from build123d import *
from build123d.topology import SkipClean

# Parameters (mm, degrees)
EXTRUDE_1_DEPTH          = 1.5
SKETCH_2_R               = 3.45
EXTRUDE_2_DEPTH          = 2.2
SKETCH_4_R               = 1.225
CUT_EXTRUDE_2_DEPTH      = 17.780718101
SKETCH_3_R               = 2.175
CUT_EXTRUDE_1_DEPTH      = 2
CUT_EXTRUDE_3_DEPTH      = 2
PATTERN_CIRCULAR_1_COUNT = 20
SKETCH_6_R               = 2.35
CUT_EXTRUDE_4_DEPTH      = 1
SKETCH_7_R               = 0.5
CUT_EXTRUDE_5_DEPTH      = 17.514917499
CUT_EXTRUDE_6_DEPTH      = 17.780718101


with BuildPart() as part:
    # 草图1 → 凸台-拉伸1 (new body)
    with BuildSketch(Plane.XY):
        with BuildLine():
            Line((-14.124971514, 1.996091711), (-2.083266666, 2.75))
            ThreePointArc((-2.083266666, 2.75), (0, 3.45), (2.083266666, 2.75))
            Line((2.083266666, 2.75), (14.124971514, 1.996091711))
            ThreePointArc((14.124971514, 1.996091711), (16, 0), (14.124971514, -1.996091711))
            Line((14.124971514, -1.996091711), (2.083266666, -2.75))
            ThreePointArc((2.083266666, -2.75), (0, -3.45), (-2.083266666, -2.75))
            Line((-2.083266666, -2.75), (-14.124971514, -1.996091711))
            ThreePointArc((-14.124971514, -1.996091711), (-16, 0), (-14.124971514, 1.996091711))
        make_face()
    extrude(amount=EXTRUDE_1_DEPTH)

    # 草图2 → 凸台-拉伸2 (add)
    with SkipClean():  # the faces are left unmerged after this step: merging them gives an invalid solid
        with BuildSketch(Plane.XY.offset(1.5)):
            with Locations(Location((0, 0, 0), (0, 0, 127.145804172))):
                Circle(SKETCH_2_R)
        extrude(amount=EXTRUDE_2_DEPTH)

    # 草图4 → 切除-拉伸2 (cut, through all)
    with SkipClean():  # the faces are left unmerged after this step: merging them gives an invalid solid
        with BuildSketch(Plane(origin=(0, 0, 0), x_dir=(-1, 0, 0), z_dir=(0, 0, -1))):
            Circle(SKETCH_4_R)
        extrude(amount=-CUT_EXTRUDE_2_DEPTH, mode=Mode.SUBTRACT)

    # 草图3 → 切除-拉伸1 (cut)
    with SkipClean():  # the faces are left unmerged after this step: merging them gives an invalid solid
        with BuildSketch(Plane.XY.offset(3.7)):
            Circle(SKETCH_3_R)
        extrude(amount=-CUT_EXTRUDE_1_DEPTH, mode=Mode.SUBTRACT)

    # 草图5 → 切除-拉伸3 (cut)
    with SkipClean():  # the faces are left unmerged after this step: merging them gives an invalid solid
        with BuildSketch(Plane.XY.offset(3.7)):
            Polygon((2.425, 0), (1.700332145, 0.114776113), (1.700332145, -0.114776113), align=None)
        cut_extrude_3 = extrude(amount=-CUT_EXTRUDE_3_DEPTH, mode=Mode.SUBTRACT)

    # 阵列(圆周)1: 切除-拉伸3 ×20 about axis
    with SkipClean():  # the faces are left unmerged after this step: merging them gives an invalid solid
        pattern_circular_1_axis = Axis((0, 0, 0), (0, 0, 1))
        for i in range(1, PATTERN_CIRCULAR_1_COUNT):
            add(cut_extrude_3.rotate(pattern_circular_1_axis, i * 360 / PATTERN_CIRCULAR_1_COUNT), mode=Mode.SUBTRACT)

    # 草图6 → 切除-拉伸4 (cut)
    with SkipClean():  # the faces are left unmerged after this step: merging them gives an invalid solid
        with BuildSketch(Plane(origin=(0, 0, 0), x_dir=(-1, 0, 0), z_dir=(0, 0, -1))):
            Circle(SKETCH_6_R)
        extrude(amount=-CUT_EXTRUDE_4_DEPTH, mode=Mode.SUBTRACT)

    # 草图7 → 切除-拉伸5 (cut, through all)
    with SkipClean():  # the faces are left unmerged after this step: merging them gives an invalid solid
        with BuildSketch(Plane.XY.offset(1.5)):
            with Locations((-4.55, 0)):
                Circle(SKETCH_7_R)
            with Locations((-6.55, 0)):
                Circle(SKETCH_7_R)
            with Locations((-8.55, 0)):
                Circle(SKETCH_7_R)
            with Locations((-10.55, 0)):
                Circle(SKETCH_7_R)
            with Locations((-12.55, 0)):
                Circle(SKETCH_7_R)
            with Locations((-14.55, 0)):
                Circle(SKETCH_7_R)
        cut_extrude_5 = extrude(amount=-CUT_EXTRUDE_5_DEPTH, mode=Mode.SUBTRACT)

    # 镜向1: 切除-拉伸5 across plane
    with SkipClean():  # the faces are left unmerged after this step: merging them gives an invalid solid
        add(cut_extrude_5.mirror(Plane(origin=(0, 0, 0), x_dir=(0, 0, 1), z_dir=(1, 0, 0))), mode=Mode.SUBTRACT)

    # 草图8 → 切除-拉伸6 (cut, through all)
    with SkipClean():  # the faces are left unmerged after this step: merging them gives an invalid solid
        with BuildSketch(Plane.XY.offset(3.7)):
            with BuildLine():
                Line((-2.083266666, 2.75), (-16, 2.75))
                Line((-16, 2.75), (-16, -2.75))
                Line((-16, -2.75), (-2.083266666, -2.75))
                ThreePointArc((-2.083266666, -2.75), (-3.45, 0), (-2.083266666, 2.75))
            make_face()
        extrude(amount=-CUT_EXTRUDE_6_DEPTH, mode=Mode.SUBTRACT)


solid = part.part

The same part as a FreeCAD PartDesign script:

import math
import FreeCAD as App
import Part
import Sketcher
Q = App.Units.Quantity


def add_polygon(sketch, points):
    """Adds a closed chain of lines whose ends are joined by coincident constraints."""
    first, n = sketch.GeometryCount, len(points)
    for a, b in zip(points, points[1:] + points[:1]):
        sketch.addGeometry(Part.LineSegment(App.Vector(*a, 0), App.Vector(*b, 0)), False)
    for i in range(n):
        sketch.addConstraint(Sketcher.Constraint("Coincident", first + i, 2, first + (i + 1) % n, 1))

doc = App.newDocument("Part")
body = doc.addObject("PartDesign::Body", "Body")

# Sketch on XY plane
sketch1 = body.newObject("Sketcher::SketchObject", "Sketch")
sketch1.AttachmentSupport = (doc.getObject("XY_Plane"), [""])
sketch1.MapMode = "FlatFace"
sketch1.addGeometry(Part.LineSegment(App.Vector(-2.1, 2.8, 0), App.Vector(-14.1, 2, 0)), False)
sketch1.addGeometry(Part.ArcOfCircle(Part.Circle(App.Vector(-14, 0, 0), App.Vector(0, 0, 1), 2), math.radians(94), math.radians(266)), False)
sketch1.addGeometry(Part.LineSegment(App.Vector(-14.1, -2, 0), App.Vector(-2.1, -2.8, 0)), False)
sketch1.addGeometry(Part.ArcOfCircle(Part.Circle(App.Vector(0, 0, 0), App.Vector(0, 0, 1), 3.5), math.radians(-127), math.radians(-53)), False)
sketch1.addGeometry(Part.LineSegment(App.Vector(2.1, -2.8, 0), App.Vector(14.1, -2, 0)), False)
sketch1.addGeometry(Part.ArcOfCircle(Part.Circle(App.Vector(14, 0, 0), App.Vector(0, 0, 1), 2), math.radians(-86), math.radians(86)), False)
sketch1.addGeometry(Part.LineSegment(App.Vector(14.1, 2, 0), App.Vector(2.1, 2.8, 0)), False)
sketch1.addGeometry(Part.ArcOfCircle(Part.Circle(App.Vector(0, 0, 0), App.Vector(0, 0, 1), 3.5), math.radians(53), math.radians(127)), False)
sketch1.addConstraint(Sketcher.Constraint("Tangent", 0, 2, 1, 1))
sketch1.addConstraint(Sketcher.Constraint("Tangent", 1, 2, 2, 1))
sketch1.addConstraint(Sketcher.Constraint("Coincident", 2, 2, 3, 1))
sketch1.addConstraint(Sketcher.Constraint("Coincident", 3, 2, 4, 1))
sketch1.addConstraint(Sketcher.Constraint("Tangent", 4, 2, 5, 1))
sketch1.addConstraint(Sketcher.Constraint("Tangent", 5, 2, 6, 1))
sketch1.addConstraint(Sketcher.Constraint("Coincident", 6, 2, 7, 1))
sketch1.addConstraint(Sketcher.Constraint("Coincident", 7, 2, 0, 1))
sketch1.addConstraint(Sketcher.Constraint("Coincident", 3, 3, -1, 1))
sketch1.addConstraint(Sketcher.Constraint("Coincident", 7, 3, -1, 1))
sketch1.addConstraint(Sketcher.Constraint("Equal", 1, 5))
sketch1.addConstraint(Sketcher.Constraint("Equal", 3, 7))
sketch1.addConstraint(Sketcher.Constraint("Symmetric", 1, 3, 5, 3, -1, 1))
sketch1.addConstraint(Sketcher.Constraint("Symmetric", 1, 2, 4, 2, -2))
sketch1.addConstraint(Sketcher.Constraint("Parallel", 0, 4))
sketch1.addConstraint(Sketcher.Constraint("Parallel", 2, 6))
sketch1.addConstraint(Sketcher.Constraint("Radius", 1, Q("2 mm")))
sketch1.addConstraint(Sketcher.Constraint("Radius", 3, Q("3.45 mm")))
sketch1.addConstraint(Sketcher.Constraint("DistanceX", 1, 3, -1, 1, Q("14 mm")))
sketch1.addConstraint(Sketcher.Constraint("DistanceY", 3, 2, 6, 2, Q("5.5 mm")))
pad1 = body.newObject("PartDesign::Pad", "Pad")
pad1.Profile = sketch1
pad1.Length = 1.5

# Sketch on XY plane
sketch2 = body.newObject("Sketcher::SketchObject", "Sketch001")
sketch2.AttachmentSupport = (doc.getObject("XY_Plane"), [""])
sketch2.MapMode = "FlatFace"
sketch2.AttachmentOffset = App.Placement(App.Vector(0, 0, 1.5), App.Rotation())
sketch2.addGeometry(Part.Circle(App.Vector(0, 0, 0), App.Vector(0, 0, 1), 3.5), False)
sketch2.addConstraint(Sketcher.Constraint("Coincident", 0, 3, -1, 1))
sketch2.addConstraint(Sketcher.Constraint("Diameter", 0, Q("6.9 mm")))
pad2 = body.newObject("PartDesign::Pad", "Pad001")
pad2.Profile = sketch2
pad2.Length = 2.2

# Sketch on XY plane
sketch3 = body.newObject("Sketcher::SketchObject", "Sketch002")
sketch3.AttachmentSupport = (doc.getObject("XY_Plane"), [""])
sketch3.MapMode = "FlatFace"
sketch3.addGeometry(Part.Circle(App.Vector(0, 0, 0), App.Vector(0, 0, 1), 1.2), False)
sketch3.addConstraint(Sketcher.Constraint("Coincident", 0, 3, -1, 1))
sketch3.addConstraint(Sketcher.Constraint("Diameter", 0, Q("2.45 mm")))
pocket1 = body.newObject("PartDesign::Pocket", "Pocket")
pocket1.Profile = sketch3
pocket1.Type = "ThroughAll"
pocket1.Reversed = True

# Sketch on XY plane
sketch4 = body.newObject("Sketcher::SketchObject", "Sketch003")
sketch4.AttachmentSupport = (doc.getObject("XY_Plane"), [""])
sketch4.MapMode = "FlatFace"
sketch4.AttachmentOffset = App.Placement(App.Vector(0, 0, 3.7), App.Rotation())
sketch4.addGeometry(Part.Circle(App.Vector(0, 0, 0), App.Vector(0, 0, 1), 2.2), False)
sketch4.addConstraint(Sketcher.Constraint("Coincident", 0, 3, -1, 1))
sketch4.addConstraint(Sketcher.Constraint("Diameter", 0, Q("4.35 mm")))
pocket2 = body.newObject("PartDesign::Pocket", "Pocket001")
pocket2.Profile = sketch4
pocket2.Length = 2

# Sketch on XY plane
sketch5 = body.newObject("Sketcher::SketchObject", "Sketch004")
sketch5.AttachmentSupport = (doc.getObject("XY_Plane"), [""])
sketch5.MapMode = "FlatFace"
sketch5.AttachmentOffset = App.Placement(App.Vector(0, 0, 3.7), App.Rotation())
add_polygon(sketch5, [(2.42, 0), (1.7, 0.11), (1.7, -0.11)])  # lines 0-2
sketch5.addConstraint(Sketcher.Constraint("Vertical", 1))
sketch5.addConstraint(Sketcher.Constraint("PointOnObject", 2, 2, -1))
sketch5.addConstraint(Sketcher.Constraint("Equal", 0, 2))
sketch5.addConstraint(Sketcher.Constraint("Angle", 0, Q("171 deg")))
sketch5.addConstraint(Sketcher.Constraint("DistanceX", -1, 1, 2, 2, Q("2.425 mm")))
sketch5.addConstraint(Sketcher.Constraint("Distance", 0, Q("0.733701 mm")))
pocket3 = body.newObject("PartDesign::Pocket", "Pocket002")
pocket3.Profile = sketch5
pocket3.Length = 2
doc.recompute()

polarpattern = body.newObject("PartDesign::PolarPattern", "PolarPattern")
polarpattern.Originals = [pocket3]
polarpattern.Axis = (doc.getObject("Z_Axis"), [""])
polarpattern.Angle = 360
polarpattern.Occurrences = 20
body.Tip = polarpattern

# Sketch on XY plane
sketch6 = body.newObject("Sketcher::SketchObject", "Sketch005")
sketch6.AttachmentSupport = (doc.getObject("XY_Plane"), [""])
sketch6.MapMode = "FlatFace"
sketch6.addGeometry(Part.Circle(App.Vector(0, 0, 0), App.Vector(0, 0, 1), 2.4), False)
sketch6.addConstraint(Sketcher.Constraint("Coincident", 0, 3, -1, 1))
sketch6.addConstraint(Sketcher.Constraint("Diameter", 0, Q("4.7 mm")))
pocket4 = body.newObject("PartDesign::Pocket", "Pocket003")
pocket4.Profile = sketch6
pocket4.Length = 1
pocket4.Reversed = True

# Sketch on XY plane
sketch7 = body.newObject("Sketcher::SketchObject", "Sketch006")
sketch7.AttachmentSupport = (doc.getObject("XY_Plane"), [""])
sketch7.MapMode = "FlatFace"
sketch7.AttachmentOffset = App.Placement(App.Vector(0, 0, 1.5), App.Rotation())
sketch7.addGeometry(Part.Circle(App.Vector(-4.5, 0, 0), App.Vector(0, 0, 1), 0.5), False)
sketch7.addGeometry(Part.Circle(App.Vector(-6.5, 0, 0), App.Vector(0, 0, 1), 0.5), False)
sketch7.addGeometry(Part.Circle(App.Vector(-8.6, 0, 0), App.Vector(0, 0, 1), 0.5), False)
sketch7.addGeometry(Part.Circle(App.Vector(-10.6, 0, 0), App.Vector(0, 0, 1), 0.5), False)
sketch7.addGeometry(Part.Circle(App.Vector(-12.6, 0, 0), App.Vector(0, 0, 1), 0.5), False)
sketch7.addGeometry(Part.Circle(App.Vector(-14.6, 0, 0), App.Vector(0, 0, 1), 0.5), False)
sketch7.addConstraint(Sketcher.Constraint("Equal", 0, 1))
sketch7.addConstraint(Sketcher.Constraint("Equal", 1, 2))
sketch7.addConstraint(Sketcher.Constraint("Equal", 2, 3))
sketch7.addConstraint(Sketcher.Constraint("Equal", 3, 4))
sketch7.addConstraint(Sketcher.Constraint("Equal", 4, 5))
sketch7.addConstraint(Sketcher.Constraint("PointOnObject", 0, 3, -1))
sketch7.addConstraint(Sketcher.Constraint("PointOnObject", 1, 3, -1))
sketch7.addConstraint(Sketcher.Constraint("PointOnObject", 2, 3, -1))
sketch7.addConstraint(Sketcher.Constraint("PointOnObject", 3, 3, -1))
sketch7.addConstraint(Sketcher.Constraint("PointOnObject", 4, 3, -1))
sketch7.addConstraint(Sketcher.Constraint("PointOnObject", 5, 3, -1))
sketch7.addConstraint(Sketcher.Constraint("Diameter", 0, Q("1 mm")))
sketch7.addConstraint(Sketcher.Constraint("DistanceX", 1, 3, 0, 3, Q("2 mm")))
sketch7.addConstraint(Sketcher.Constraint("DistanceX", 2, 3, 1, 3, Q("2 mm")))
sketch7.addConstraint(Sketcher.Constraint("DistanceX", 3, 3, 2, 3, Q("2 mm")))
sketch7.addConstraint(Sketcher.Constraint("DistanceX", 4, 3, 3, 3, Q("2 mm")))
sketch7.addConstraint(Sketcher.Constraint("DistanceX", 5, 3, 4, 3, Q("2 mm")))
sketch7.addConstraint(Sketcher.Constraint("DistanceX", 0, 3, -1, 1, Q("4.55 mm")))
pocket5 = body.newObject("PartDesign::Pocket", "Pocket004")
pocket5.Profile = sketch7
pocket5.Type = "ThroughAll"
doc.recompute()

mirrored = body.newObject("PartDesign::Mirrored", "Mirrored")
mirrored.Originals = [pocket5]
mirrored.MirrorPlane = (doc.getObject("YZ_Plane"), [""])
body.Tip = mirrored

# Sketch on XY plane
sketch8 = body.newObject("Sketcher::SketchObject", "Sketch007")
sketch8.AttachmentSupport = (doc.getObject("XY_Plane"), [""])
sketch8.MapMode = "FlatFace"
sketch8.AttachmentOffset = App.Placement(App.Vector(0, 0, 3.7), App.Rotation())
sketch8.addGeometry(Part.LineSegment(App.Vector(-2.1, 2.8, 0), App.Vector(-16, 2.8, 0)), False)
sketch8.addGeometry(Part.LineSegment(App.Vector(-16, 2.8, 0), App.Vector(-16, -2.8, 0)), False)
sketch8.addGeometry(Part.LineSegment(App.Vector(-16, -2.8, 0), App.Vector(-2.1, -2.8, 0)), False)
sketch8.addGeometry(Part.ArcOfCircle(Part.Circle(App.Vector(0, 0, 0), App.Vector(0, 0, 1), 3.5), math.radians(127), math.radians(233)), False)
sketch8.addConstraint(Sketcher.Constraint("Coincident", 0, 2, 1, 1))
sketch8.addConstraint(Sketcher.Constraint("Coincident", 1, 2, 2, 1))
sketch8.addConstraint(Sketcher.Constraint("Coincident", 2, 2, 3, 2))
sketch8.addConstraint(Sketcher.Constraint("Coincident", 3, 1, 0, 1))
sketch8.addConstraint(Sketcher.Constraint("Horizontal", 0))
sketch8.addConstraint(Sketcher.Constraint("Vertical", 1))
sketch8.addConstraint(Sketcher.Constraint("Horizontal", 2))
sketch8.addConstraint(Sketcher.Constraint("Coincident", 3, 3, -1, 1))
sketch8.addConstraint(Sketcher.Constraint("Vertical", 2, 2, 3, 1))
sketch8.addConstraint(Sketcher.Constraint("Radius", 3, Q("3.45 mm")))
sketch8.addConstraint(Sketcher.Constraint("DistanceY", 1, 2, 1, 1, Q("5.5 mm")))
sketch8.addConstraint(Sketcher.Constraint("DistanceX", 0, 2, -1, 1, Q("16 mm")))
pocket6 = body.newObject("PartDesign::Pocket", "Pocket005")
pocket6.Profile = sketch8
pocket6.Type = "ThroughAll"

doc.recompute()
